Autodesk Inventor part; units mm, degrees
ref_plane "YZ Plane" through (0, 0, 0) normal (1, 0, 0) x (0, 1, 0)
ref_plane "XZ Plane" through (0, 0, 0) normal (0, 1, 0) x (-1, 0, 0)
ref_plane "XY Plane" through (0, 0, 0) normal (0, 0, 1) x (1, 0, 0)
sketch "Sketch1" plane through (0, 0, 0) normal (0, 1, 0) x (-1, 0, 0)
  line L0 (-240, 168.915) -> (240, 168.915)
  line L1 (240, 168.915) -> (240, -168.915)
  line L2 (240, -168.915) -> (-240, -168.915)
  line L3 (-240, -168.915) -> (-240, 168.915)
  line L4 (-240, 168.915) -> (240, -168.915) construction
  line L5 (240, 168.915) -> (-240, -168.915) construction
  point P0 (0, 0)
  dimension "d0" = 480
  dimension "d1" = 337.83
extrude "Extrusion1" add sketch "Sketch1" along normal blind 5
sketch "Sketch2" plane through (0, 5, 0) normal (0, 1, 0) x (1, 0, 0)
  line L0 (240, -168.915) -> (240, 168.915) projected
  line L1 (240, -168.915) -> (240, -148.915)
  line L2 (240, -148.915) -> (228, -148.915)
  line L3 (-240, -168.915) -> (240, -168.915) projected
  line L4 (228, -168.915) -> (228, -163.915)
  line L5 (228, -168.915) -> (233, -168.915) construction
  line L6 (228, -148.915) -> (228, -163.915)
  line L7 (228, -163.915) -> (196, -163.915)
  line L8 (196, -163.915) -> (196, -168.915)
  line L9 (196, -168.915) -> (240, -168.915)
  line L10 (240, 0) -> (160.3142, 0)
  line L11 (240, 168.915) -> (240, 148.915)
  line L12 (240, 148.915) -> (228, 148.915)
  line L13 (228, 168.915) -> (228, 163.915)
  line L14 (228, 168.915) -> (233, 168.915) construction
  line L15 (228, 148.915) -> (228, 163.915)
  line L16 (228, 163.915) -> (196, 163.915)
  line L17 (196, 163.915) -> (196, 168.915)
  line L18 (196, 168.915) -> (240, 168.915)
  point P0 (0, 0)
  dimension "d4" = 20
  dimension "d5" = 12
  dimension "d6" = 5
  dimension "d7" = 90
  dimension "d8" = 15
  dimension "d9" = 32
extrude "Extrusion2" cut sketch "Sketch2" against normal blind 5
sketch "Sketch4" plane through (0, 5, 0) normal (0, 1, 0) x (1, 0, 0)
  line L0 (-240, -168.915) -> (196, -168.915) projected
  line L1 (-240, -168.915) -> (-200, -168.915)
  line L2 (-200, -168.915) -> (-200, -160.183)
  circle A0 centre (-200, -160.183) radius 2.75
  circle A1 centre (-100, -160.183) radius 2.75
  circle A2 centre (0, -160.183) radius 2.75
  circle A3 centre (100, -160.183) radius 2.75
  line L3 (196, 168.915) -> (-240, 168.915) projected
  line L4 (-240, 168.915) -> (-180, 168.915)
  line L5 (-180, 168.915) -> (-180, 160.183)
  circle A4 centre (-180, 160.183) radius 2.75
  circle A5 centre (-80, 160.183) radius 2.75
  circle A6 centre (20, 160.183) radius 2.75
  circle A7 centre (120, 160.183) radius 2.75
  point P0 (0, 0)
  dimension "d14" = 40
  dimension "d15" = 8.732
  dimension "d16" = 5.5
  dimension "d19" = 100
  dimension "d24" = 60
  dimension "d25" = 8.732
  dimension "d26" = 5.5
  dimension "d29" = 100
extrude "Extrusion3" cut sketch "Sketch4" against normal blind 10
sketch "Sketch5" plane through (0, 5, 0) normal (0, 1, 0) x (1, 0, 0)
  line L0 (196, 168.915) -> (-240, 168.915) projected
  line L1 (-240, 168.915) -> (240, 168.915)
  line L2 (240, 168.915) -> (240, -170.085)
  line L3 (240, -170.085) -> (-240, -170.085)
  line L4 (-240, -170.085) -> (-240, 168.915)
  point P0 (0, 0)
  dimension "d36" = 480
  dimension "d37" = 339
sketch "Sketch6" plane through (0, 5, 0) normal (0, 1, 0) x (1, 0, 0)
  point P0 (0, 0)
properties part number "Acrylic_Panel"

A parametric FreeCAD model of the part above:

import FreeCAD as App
import Part
import Sketcher
from FreeCAD import Vector


def add_polygon(sketch, points):
    """Adds a closed chain of lines whose ends are joined by coincident constraints."""
    first, n = sketch.GeometryCount, len(points)
    for a, b in zip(points, points[1:] + points[:1]):
        sketch.addGeometry(Part.LineSegment(App.Vector(*a, 0), App.Vector(*b, 0)), False)
    for i in range(n):
        sketch.addConstraint(Sketcher.Constraint("Coincident", first + i, 2, first + (i + 1) % n, 1))

doc = App.newDocument("Part")
body = doc.addObject("PartDesign::Body", "Body")

# Sketch on XZ plane
sketch1 = body.newObject("Sketcher::SketchObject", "Sketch")
sketch1.AttachmentSupport = (doc.getObject("XZ_Plane"), [""])
sketch1.MapMode = "FlatFace"
add_polygon(sketch1, [(-240, 169), (240, 169), (240, -169), (-240, -169)])  # lines 0-3
sketch1.addConstraint([
    Sketcher.Constraint("Horizontal", 0),
    Sketcher.Constraint("Vertical", 1),
    Sketcher.Constraint("Horizontal", 2),
    Sketcher.Constraint("Vertical", 3),
    Sketcher.Constraint("Symmetric", 0, 2, 2, 2, -1, 1),
    Sketcher.Constraint("DistanceX", 0, 1, 0, 2, 480.0),
    Sketcher.Constraint("DistanceY", 1, 2, 1, 1, 337.83),
])
pad1 = body.newObject("PartDesign::Pad", "Pad")
pad1.Profile = sketch1
pad1.Length = 5
pad1.Reversed = True

# Sketch on XZ plane
sketch2 = body.newObject("Sketcher::SketchObject", "Sketch001")
sketch2.AttachmentSupport = (doc.getObject("XZ_Plane"), [""])
sketch2.MapMode = "FlatFace"
sketch2.AttachmentOffset = App.Placement(Vector(0, 0, -5), App.Rotation())
add_polygon(sketch2, [(240, 169), (240, 149), (228, 149), (228, 164), (196, 164), (196, 169)])  # lines 0-5
add_polygon(sketch2, [(228, -149), (240, -149), (240, -169), (196, -169), (196, -164), (228, -164)])  # lines 6-11
sketch2.addConstraint([
    Sketcher.Constraint("Vertical", 0),
    Sketcher.Constraint("Horizontal", 1),
    Sketcher.Constraint("Vertical", 2),
    Sketcher.Constraint("Horizontal", 3),
    Sketcher.Constraint("Vertical", 4),
    Sketcher.Constraint("Horizontal", 5),
    Sketcher.Constraint("Horizontal", 6),
    Sketcher.Constraint("Vertical", 7),
    Sketcher.Constraint("Horizontal", 8),
    Sketcher.Constraint("Vertical", 9),
    Sketcher.Constraint("Horizontal", 10),
    Sketcher.Constraint("Vertical", 11),
    Sketcher.Constraint("Symmetric", 0, 2, 6, 2, -1),
    Sketcher.Constraint("Symmetric", 4, 2, 8, 2, -1),
    Sketcher.Constraint("Symmetric", 2, 2, 10, 2, -1),
    Sketcher.Constraint("DistanceX", 1, 2, 1, 1, 12.0),
    Sketcher.Constraint("DistanceX", 3, 2, 3, 1, 32.0),
    Sketcher.Constraint("DistanceY", 0, 2, 0, 1, 20.0),
    Sketcher.Constraint("DistanceY", 2, 1, 2, 2, 15.0),
    Sketcher.Constraint("DistanceX", -1, 1, 0, 2, 240.0),
    Sketcher.Constraint("DistanceY", 6, 2, 0, 2, 297.83),
])
pocket1 = body.newObject("PartDesign::Pocket", "Pocket")
pocket1.Profile = sketch2
pocket1.Length = 5
pocket1.Reversed = True

# Sketch on XZ plane
sketch3 = body.newObject("Sketcher::SketchObject", "Sketch002")
sketch3.AttachmentSupport = (doc.getObject("XZ_Plane"), [""])
sketch3.MapMode = "FlatFace"
sketch3.AttachmentOffset = App.Placement(Vector(0, 0, -5), App.Rotation())
sketch3.addGeometry([
    Part.Circle(Vector(-200, 160.2, 0), Vector(0, 0, 1), 2.8),  # 0
    Part.Circle(Vector(-100, 160.2, 0), Vector(0, 0, 1), 2.8),  # 1
    Part.Circle(Vector(0, 160.2, 0), Vector(0, 0, 1), 2.8),  # 2
    Part.Circle(Vector(100, 160.2, 0), Vector(0, 0, 1), 2.8),  # 3
    Part.Circle(Vector(-180, -160.2, 0), Vector(0, 0, 1), 2.8),  # 4
    Part.Circle(Vector(-80, -160.2, 0), Vector(0, 0, 1), 2.8),  # 5
    Part.Circle(Vector(20, -160.2, 0), Vector(0, 0, 1), 2.8),  # 6
    Part.Circle(Vector(120, -160.2, 0), Vector(0, 0, 1), 2.8),  # 7
], False)
sketch3.addConstraint([
    Sketcher.Constraint("Equal", 0, 1),
    Sketcher.Constraint("Equal", 1, 2),
    Sketcher.Constraint("Equal", 2, 3),
    Sketcher.Constraint("Equal", 3, 4),
    Sketcher.Constraint("Equal", 4, 5),
    Sketcher.Constraint("Equal", 5, 6),
    Sketcher.Constraint("Equal", 6, 7),
    Sketcher.Constraint("Symmetric", 1, 3, 3, 3, -2),
    Sketcher.Constraint("PointOnObject", 2, 3, -2),
    Sketcher.Constraint("Horizontal", 0, 3, 1, 3),
    Sketcher.Constraint("Horizontal", 1, 3, 2, 3),
    Sketcher.Constraint("Horizontal", 4, 3, 5, 3),
    Sketcher.Constraint("Horizontal", 5, 3, 6, 3),
    Sketcher.Constraint("Horizontal", 6, 3, 7, 3),
    Sketcher.Constraint("Diameter", 0, 5.5),
    Sketcher.Constraint("DistanceX", 1, 3, -1, 1, 100.0),
    Sketcher.Constraint("DistanceX", 0, 3, 1, 3, 100.0),
    Sketcher.Constraint("DistanceX", 4, 3, 5, 3, 100.0),
    Sketcher.Constraint("DistanceX", 5, 3, 6, 3, 100.0),
    Sketcher.Constraint("DistanceX", 6, 3, 7, 3, 100.0),
    Sketcher.Constraint("DistanceX", 4, 3, -1, 1, 180.0),
    Sketcher.Constraint("DistanceY", -1, 1, 0, 3, 160.183),
    Sketcher.Constraint("DistanceY", 4, 3, -1, 1, 160.183),
])
pocket2 = body.newObject("PartDesign::Pocket", "Pocket001")
pocket2.Profile = sketch3
pocket2.Length = 10
pocket2.Reversed = True

doc.recompute()
